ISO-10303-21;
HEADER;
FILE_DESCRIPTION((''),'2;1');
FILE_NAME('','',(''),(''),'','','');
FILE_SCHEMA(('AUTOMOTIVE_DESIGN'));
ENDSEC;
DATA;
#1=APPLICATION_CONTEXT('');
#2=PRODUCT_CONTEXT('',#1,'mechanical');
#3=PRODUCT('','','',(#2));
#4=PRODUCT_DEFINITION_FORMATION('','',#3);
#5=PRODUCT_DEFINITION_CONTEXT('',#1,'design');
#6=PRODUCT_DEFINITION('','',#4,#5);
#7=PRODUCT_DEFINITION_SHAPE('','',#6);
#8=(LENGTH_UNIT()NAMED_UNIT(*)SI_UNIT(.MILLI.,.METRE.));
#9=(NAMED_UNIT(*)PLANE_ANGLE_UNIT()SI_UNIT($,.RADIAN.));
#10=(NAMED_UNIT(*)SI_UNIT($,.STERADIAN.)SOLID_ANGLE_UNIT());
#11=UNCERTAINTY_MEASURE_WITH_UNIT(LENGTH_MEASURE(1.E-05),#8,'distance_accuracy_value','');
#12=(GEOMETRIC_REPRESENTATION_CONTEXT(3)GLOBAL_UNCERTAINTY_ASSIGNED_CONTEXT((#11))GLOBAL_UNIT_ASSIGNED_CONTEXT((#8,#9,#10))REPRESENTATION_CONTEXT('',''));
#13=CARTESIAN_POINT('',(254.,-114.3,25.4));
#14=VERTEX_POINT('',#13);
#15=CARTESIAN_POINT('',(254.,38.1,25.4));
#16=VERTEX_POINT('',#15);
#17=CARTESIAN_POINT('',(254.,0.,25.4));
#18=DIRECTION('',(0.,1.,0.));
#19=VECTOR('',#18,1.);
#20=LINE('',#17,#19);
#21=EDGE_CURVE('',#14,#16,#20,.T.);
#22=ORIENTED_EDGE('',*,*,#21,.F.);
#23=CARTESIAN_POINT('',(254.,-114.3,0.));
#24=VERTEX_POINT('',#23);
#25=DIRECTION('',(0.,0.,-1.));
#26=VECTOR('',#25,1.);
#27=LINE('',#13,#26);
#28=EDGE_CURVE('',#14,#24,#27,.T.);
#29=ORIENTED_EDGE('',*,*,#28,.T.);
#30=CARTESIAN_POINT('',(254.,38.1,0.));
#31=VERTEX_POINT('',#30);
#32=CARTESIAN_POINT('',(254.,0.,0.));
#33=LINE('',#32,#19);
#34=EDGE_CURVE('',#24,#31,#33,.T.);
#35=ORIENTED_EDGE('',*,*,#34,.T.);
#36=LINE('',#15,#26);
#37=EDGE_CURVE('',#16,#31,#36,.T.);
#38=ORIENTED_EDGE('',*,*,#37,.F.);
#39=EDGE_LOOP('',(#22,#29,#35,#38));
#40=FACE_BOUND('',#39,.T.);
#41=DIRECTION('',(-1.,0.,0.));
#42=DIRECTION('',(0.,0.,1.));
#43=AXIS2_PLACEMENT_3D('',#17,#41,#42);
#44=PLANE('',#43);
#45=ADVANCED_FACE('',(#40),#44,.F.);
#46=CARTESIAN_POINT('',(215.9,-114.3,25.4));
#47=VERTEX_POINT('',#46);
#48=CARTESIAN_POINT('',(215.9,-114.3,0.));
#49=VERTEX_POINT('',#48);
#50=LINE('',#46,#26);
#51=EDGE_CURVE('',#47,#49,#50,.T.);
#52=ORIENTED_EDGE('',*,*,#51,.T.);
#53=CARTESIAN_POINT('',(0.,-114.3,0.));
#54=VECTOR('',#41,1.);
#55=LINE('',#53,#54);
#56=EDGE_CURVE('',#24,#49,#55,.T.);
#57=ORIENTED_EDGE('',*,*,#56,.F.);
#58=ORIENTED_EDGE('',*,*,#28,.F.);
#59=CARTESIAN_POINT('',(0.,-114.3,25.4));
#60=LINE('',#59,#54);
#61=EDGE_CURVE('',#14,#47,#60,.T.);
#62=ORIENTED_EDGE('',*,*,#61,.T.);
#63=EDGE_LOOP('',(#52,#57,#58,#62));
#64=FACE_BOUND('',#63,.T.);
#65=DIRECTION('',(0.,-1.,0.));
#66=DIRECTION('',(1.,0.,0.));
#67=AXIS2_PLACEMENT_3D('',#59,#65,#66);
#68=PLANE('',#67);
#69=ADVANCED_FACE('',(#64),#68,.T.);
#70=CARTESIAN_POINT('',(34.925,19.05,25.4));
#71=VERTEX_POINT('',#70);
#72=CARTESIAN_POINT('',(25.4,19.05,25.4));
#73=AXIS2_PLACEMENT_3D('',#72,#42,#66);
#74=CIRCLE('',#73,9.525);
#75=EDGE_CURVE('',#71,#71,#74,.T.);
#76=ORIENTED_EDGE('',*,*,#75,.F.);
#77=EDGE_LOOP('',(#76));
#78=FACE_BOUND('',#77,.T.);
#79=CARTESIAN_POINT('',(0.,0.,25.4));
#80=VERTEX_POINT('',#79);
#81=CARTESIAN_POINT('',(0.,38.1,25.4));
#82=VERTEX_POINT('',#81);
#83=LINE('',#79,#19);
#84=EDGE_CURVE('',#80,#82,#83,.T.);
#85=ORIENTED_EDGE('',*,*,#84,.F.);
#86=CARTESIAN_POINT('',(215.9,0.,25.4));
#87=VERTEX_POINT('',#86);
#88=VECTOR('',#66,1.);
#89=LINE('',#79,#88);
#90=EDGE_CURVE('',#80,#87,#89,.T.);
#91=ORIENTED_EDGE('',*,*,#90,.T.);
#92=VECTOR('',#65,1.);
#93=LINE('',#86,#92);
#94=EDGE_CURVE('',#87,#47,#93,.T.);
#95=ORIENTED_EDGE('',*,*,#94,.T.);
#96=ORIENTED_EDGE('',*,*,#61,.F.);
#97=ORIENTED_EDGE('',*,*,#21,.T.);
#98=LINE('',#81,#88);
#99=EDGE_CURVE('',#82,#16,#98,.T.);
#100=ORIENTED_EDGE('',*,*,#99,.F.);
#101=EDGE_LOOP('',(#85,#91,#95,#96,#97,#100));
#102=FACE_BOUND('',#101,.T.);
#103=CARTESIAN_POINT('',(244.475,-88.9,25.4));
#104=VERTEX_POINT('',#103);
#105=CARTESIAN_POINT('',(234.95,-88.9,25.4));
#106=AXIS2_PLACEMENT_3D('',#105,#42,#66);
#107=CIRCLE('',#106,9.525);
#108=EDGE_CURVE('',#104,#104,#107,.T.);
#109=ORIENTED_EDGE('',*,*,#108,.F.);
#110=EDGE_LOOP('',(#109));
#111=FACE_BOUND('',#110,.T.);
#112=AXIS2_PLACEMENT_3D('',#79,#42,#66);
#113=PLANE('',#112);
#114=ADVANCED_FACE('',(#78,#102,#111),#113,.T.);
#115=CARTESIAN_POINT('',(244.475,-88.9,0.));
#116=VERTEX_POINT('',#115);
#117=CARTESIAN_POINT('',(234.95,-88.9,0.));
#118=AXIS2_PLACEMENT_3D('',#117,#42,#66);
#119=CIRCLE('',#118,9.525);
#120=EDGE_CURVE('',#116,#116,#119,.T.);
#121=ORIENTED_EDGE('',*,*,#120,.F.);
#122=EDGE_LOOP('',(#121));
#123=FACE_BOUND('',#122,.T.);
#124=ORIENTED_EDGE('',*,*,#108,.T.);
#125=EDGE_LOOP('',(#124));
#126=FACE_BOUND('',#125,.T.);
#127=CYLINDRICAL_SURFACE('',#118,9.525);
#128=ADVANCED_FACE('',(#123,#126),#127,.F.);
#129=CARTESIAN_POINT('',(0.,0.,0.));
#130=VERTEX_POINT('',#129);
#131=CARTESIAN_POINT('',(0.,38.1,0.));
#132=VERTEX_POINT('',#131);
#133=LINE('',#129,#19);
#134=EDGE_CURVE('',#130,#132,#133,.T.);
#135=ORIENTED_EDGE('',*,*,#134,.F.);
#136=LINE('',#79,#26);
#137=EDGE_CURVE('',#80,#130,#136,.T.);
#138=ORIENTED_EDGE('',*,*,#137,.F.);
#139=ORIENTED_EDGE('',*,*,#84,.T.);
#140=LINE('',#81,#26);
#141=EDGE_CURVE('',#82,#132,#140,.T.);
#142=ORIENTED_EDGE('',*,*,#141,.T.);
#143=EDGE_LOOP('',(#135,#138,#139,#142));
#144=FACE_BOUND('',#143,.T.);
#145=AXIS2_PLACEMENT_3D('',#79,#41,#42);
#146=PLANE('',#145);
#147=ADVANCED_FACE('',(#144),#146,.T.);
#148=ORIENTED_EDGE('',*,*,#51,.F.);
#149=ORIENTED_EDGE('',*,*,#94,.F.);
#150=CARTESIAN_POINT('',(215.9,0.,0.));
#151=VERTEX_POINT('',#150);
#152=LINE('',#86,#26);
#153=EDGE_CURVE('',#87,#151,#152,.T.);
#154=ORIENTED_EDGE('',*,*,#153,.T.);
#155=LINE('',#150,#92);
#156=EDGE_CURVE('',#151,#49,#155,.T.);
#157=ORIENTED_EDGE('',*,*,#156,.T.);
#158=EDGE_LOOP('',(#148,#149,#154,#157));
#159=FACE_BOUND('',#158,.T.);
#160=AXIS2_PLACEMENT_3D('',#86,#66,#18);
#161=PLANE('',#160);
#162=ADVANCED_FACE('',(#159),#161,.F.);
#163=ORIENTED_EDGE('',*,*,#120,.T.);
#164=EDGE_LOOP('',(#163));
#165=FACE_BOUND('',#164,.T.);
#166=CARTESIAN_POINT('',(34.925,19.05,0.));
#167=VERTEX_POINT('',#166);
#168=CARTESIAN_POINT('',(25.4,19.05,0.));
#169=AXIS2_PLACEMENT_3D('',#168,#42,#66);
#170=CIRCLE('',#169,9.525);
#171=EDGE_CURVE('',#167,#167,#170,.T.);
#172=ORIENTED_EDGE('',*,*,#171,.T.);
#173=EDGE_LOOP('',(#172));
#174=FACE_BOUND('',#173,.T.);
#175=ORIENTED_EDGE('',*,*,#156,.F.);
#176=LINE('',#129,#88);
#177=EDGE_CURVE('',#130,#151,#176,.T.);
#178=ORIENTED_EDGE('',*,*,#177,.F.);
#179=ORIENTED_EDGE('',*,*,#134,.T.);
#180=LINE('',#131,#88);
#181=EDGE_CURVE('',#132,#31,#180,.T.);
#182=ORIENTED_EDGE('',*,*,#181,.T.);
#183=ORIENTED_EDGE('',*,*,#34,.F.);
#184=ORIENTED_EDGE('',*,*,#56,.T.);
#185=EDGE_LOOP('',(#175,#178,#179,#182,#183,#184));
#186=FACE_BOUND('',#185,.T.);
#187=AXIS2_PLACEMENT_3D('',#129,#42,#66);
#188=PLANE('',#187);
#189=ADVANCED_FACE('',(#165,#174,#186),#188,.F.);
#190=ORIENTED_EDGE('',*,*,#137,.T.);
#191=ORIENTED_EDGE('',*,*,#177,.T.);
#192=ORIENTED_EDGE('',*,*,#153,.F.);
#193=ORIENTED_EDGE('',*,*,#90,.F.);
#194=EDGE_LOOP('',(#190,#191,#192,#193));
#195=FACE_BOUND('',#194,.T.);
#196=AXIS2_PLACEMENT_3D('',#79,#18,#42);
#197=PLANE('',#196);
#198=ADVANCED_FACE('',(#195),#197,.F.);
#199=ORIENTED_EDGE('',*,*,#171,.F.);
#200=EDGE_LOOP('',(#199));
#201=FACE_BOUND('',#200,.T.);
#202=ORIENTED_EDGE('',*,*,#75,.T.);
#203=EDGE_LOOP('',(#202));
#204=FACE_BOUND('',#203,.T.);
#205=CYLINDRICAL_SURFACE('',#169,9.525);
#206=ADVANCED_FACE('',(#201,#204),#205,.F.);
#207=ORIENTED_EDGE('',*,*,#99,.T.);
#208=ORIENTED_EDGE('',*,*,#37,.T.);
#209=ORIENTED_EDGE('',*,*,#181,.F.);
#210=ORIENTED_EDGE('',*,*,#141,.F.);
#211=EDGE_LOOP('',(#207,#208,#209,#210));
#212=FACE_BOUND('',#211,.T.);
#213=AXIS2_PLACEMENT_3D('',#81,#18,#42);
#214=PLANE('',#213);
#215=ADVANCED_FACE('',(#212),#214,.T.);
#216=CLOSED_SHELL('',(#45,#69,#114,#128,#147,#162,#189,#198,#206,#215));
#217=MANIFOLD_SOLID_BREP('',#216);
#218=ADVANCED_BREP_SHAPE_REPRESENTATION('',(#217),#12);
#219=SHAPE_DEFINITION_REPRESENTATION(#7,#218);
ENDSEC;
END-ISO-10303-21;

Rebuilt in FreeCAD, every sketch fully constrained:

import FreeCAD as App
import Part
import Sketcher
Q = App.Units.Quantity


def add_polygon(sketch, points):
    """Adds a closed chain of lines whose ends are joined by coincident constraints."""
    first, n = sketch.GeometryCount, len(points)
    for a, b in zip(points, points[1:] + points[:1]):
        sketch.addGeometry(Part.LineSegment(App.Vector(*a, 0), App.Vector(*b, 0)), False)
    for i in range(n):
        sketch.addConstraint(Sketcher.Constraint("Coincident", first + i, 2, first + (i + 1) % n, 1))

doc = App.newDocument("Part")
body = doc.addObject("PartDesign::Body", "Body")

sketch1 = doc.addObject("Sketcher::SketchObject", "Sketch")
body.addObject(sketch1)
sketch1.AttachmentSupport = (doc.XY_Plane, [""])
sketch1.MapMode = "FlatFace"
add_polygon(sketch1, [(0, 38), (0, 0), (216, 0), (216, -114), (254, -114), (254, 38)])
sketch1.addConstraint([
    Sketcher.Constraint("Vertical", 0),
    Sketcher.Constraint("Horizontal", 1),
    Sketcher.Constraint("Vertical", 2),
    Sketcher.Constraint("Horizontal", 3),
    Sketcher.Constraint("Vertical", 4),
    Sketcher.Constraint("Horizontal", 5),
    Sketcher.Constraint("Coincident", 0, 2, -1, 1),
    Sketcher.Constraint("Equal", 3, 0),
    Sketcher.Constraint("DistanceX", 5, 2, 5, 1, Q("10 in")),
    Sketcher.Constraint("DistanceY", 4, 1, 4, 2, Q("6 in")),
    Sketcher.Constraint("DistanceX", 1, 1, 1, 2, Q("8.5 in")),
])
pad1 = doc.addObject("PartDesign::Pad", "Pad")
body.addObject(pad1)
pad1.Profile = sketch1
pad1.Length = Q("1 in")

sketch2 = doc.addObject("Sketcher::SketchObject", "Sketch001")
body.addObject(sketch2)
sketch2.AttachmentSupport = (doc.XY_Plane, [""])
sketch2.MapMode = "FlatFace"
sketch2.AttachmentOffset = App.Placement(App.Vector(0, 0, 1 * 25.4), App.Rotation())
sketch2.addGeometry(Part.Circle(App.Vector(25, 19, 0), App.Vector(0, 0, 1), 10), False)
sketch2.addConstraint([
    Sketcher.Constraint("Diameter", 0, Q("0.75 in")),
    Sketcher.Constraint("DistanceX", -1, 1, 0, 3, Q("1 in")),
    Sketcher.Constraint("DistanceY", -1, 1, 0, 3, Q("0.75 in")),
])
pocket1 = doc.addObject("PartDesign::Pocket", "Pocket")
body.addObject(pocket1)
pocket1.Profile = sketch2
pocket1.Type = "ThroughAll"

sketch3 = doc.addObject("Sketcher::SketchObject", "Sketch002")
body.addObject(sketch3)
sketch3.AttachmentSupport = (doc.XY_Plane, [""])
sketch3.MapMode = "FlatFace"
sketch3.AttachmentOffset = App.Placement(App.Vector(0, 0, 1 * 25.4), App.Rotation())
sketch3.addGeometry(Part.Circle(App.Vector(235, -89, 0), App.Vector(0, 0, 1), 10), False)
sketch3.addConstraint([
    Sketcher.Constraint("Diameter", 0, Q("0.75 in")),
    Sketcher.Constraint("DistanceY", 0, 3, -1, 1, Q("3.5 in")),
    Sketcher.Constraint("DistanceX", -1, 1, 0, 3, Q("9.25 in")),
])
pocket2 = doc.addObject("PartDesign::Pocket", "Pocket001")
body.addObject(pocket2)
pocket2.Profile = sketch3
pocket2.Type = "ThroughAll"

doc.recompute()
